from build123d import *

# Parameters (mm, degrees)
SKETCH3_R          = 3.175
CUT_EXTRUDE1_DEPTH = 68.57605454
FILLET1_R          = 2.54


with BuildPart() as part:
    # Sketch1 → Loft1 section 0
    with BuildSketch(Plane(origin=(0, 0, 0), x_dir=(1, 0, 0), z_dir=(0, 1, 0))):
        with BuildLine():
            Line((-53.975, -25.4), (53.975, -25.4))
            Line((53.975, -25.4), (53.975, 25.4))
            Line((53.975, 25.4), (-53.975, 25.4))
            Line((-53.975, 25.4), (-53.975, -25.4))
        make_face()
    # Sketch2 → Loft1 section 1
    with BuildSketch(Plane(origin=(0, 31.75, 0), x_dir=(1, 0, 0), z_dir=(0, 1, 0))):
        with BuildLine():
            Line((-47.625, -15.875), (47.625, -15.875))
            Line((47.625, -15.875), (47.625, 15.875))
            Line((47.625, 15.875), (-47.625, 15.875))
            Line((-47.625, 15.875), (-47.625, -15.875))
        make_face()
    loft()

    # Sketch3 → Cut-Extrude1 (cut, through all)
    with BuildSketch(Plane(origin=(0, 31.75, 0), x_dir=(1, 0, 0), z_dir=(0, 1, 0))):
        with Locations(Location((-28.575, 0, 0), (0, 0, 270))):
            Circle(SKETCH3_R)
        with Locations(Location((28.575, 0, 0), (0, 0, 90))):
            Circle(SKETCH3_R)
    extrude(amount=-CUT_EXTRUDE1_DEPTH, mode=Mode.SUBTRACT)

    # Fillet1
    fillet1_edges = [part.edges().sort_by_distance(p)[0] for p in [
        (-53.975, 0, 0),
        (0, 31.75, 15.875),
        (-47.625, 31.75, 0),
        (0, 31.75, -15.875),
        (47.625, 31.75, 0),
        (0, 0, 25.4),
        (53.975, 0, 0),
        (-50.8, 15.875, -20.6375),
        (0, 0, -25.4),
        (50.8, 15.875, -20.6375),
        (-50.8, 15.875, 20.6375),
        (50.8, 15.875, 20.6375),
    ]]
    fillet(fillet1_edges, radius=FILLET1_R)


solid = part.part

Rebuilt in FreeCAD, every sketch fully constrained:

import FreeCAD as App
import Part
import Sketcher

V = App.Vector
Q = App.Units.Quantity


def edges_at(feature, points):
    """Names of the edges that pass closest to the given points."""
    edges = feature.Shape.Edges
    near = lambda p: min(range(len(edges)), key=lambda i: edges[i].distToShape(Part.Vertex(*p))[0])
    return sorted({f"Edge{near(p) + 1}" for p in points})

doc = App.newDocument("Part")
params = doc.addObject("Spreadsheet::Sheet", "Params")
for row, (alias, value) in enumerate([
    ("sketch1_height", "2 in"),
    ("sketch1_width", "4.25 in"),
    ("sketch2_width", "3.75 in"),
    ("sketch2_height", "1.25 in"),
    ("sketch3_diameter", "0.25 in"),
    ("fillet_radius", "0.1 in"),
], start=1):
    params.set(f"A{row}", alias)
    params.set(f"B{row}", "=" + value)
    params.setAlias(f"B{row}", alias)

body = doc.addObject("PartDesign::Body", "Body")

# Sketch on XZ plane
sketch1 = body.newObject("Sketcher::SketchObject", "Sketch")
sketch1.AttachmentSupport = (doc.getObject("XZ_Plane"), [""])
sketch1.MapMode = "FlatFace"
sketch1.addGeometry([
    Part.LineSegment(V(-53.975, 25.4, 0), V(53.975, 25.4, 0)),
    Part.LineSegment(V(53.975, 25.4, 0), V(53.975, -25.4, 0)),
    Part.LineSegment(V(53.975, -25.4, 0), V(-53.975, -25.4, 0)),
    Part.LineSegment(V(-53.975, -25.4, 0), V(-53.975, 25.4, 0)),
], False)
sketch1.addConstraint([
    Sketcher.Constraint("Coincident", 0, 2, 1, 1),
    Sketcher.Constraint("Coincident", 1, 2, 2, 1),
    Sketcher.Constraint("Coincident", 2, 2, 3, 1),
    Sketcher.Constraint("Coincident", 3, 2, 0, 1),
    Sketcher.Constraint("Horizontal", 0),
    Sketcher.Constraint("Vertical", 1),
    Sketcher.Constraint("Horizontal", 2),
    Sketcher.Constraint("Vertical", 3),
    Sketcher.Constraint("Symmetric", 0, 2, 2, 2, -1, 1),
    Sketcher.Constraint("DistanceY", 1, 2, 1, 1, Q("2 in")),
    Sketcher.Constraint("DistanceX", 0, 1, 0, 2, Q("4.25 in")),
])
sketch1.setExpression("Constraints[9]", "Params.sketch1_height")
sketch1.setExpression("Constraints[10]", "Params.sketch1_width")

# Sketch on XZ plane
sketch2 = body.newObject("Sketcher::SketchObject", "Sketch001")
sketch2.AttachmentSupport = (doc.getObject("XZ_Plane"), [""])
sketch2.MapMode = "FlatFace"
sketch2.AttachmentOffset = App.Placement(V(0, 0, -1.25 * 25.4), App.Rotation())
sketch2.addGeometry([
    Part.LineSegment(V(-47.625, 15.875, 0), V(47.625, 15.875, 0)),
    Part.LineSegment(V(47.625, 15.875, 0), V(47.625, -15.875, 0)),
    Part.LineSegment(V(47.625, -15.875, 0), V(-47.625, -15.875, 0)),
    Part.LineSegment(V(-47.625, -15.875, 0), V(-47.625, 15.875, 0)),
], False)
sketch2.addConstraint([
    Sketcher.Constraint("Coincident", 0, 2, 1, 1),
    Sketcher.Constraint("Coincident", 1, 2, 2, 1),
    Sketcher.Constraint("Coincident", 2, 2, 3, 1),
    Sketcher.Constraint("Coincident", 3, 2, 0, 1),
    Sketcher.Constraint("Horizontal", 0),
    Sketcher.Constraint("Vertical", 1),
    Sketcher.Constraint("Horizontal", 2),
    Sketcher.Constraint("Vertical", 3),
    Sketcher.Constraint("Symmetric", 0, 2, 2, 2, -1, 1),
    Sketcher.Constraint("DistanceX", 0, 1, 0, 2, Q("3.75 in")),
    Sketcher.Constraint("DistanceY", 1, 2, 1, 1, Q("1.25 in")),
])
sketch2.setExpression("Constraints[9]", "Params.sketch2_width")
sketch2.setExpression("Constraints[10]", "Params.sketch2_height")

additiveloft = body.newObject("PartDesign::AdditiveLoft", "AdditiveLoft")
additiveloft.Profile = sketch1
additiveloft.Sections = [sketch2]

# Sketch on XZ plane
sketch3 = body.newObject("Sketcher::SketchObject", "Sketch002")
sketch3.AttachmentSupport = (doc.getObject("XZ_Plane"), [""])
sketch3.MapMode = "FlatFace"
sketch3.AttachmentOffset = App.Placement(V(0, 0, -1.25 * 25.4), App.Rotation())
sketch3.addGeometry([
    Part.Circle(V(-28.575, 0, 0), V(0, 0, 1), 3.175),
    Part.Circle(V(28.575, 0, 0), V(0, 0, 1), 3.175),
], False)
sketch3.addConstraint([
    Sketcher.Constraint("Equal", 0, 1),
    Sketcher.Constraint("Symmetric", 0, 3, 1, 3, -1, 1),
    Sketcher.Constraint("PointOnObject", 0, 3, -1),
    Sketcher.Constraint("Diameter", 0, Q("0.25 in")),
    Sketcher.Constraint("DistanceX", 0, 3, 1, 3, Q("2.25 in")),
])
sketch3.setExpression("Constraints[3]", "Params.sketch3_diameter")
pocket1 = body.newObject("PartDesign::Pocket", "Pocket")
pocket1.Profile = sketch3
pocket1.Type = "ThroughAll"
pocket1.Reversed = True
doc.recompute()

fillet = body.newObject("PartDesign::Fillet", "Fillet")
fillet.Base = (pocket1, edges_at(pocket1, [
    (-53.975, 0, 0),
    (0, 31.75, 15.875),
    (-47.625, 31.75, 0),
    (0, 31.75, -15.875),
    (47.625, 31.75, 0),
    (0, 0, 25.4),
    (53.975, 0, 0),
    (-50.8, 15.875, -20.637),
    (0, 0, -25.4),
    (50.8, 15.875, -20.637),
    (-50.8, 15.875, 20.637),
    (50.8, 15.875, 20.637),
]))
fillet.setExpression("Radius", "Params.fillet_radius")

doc.recompute()
